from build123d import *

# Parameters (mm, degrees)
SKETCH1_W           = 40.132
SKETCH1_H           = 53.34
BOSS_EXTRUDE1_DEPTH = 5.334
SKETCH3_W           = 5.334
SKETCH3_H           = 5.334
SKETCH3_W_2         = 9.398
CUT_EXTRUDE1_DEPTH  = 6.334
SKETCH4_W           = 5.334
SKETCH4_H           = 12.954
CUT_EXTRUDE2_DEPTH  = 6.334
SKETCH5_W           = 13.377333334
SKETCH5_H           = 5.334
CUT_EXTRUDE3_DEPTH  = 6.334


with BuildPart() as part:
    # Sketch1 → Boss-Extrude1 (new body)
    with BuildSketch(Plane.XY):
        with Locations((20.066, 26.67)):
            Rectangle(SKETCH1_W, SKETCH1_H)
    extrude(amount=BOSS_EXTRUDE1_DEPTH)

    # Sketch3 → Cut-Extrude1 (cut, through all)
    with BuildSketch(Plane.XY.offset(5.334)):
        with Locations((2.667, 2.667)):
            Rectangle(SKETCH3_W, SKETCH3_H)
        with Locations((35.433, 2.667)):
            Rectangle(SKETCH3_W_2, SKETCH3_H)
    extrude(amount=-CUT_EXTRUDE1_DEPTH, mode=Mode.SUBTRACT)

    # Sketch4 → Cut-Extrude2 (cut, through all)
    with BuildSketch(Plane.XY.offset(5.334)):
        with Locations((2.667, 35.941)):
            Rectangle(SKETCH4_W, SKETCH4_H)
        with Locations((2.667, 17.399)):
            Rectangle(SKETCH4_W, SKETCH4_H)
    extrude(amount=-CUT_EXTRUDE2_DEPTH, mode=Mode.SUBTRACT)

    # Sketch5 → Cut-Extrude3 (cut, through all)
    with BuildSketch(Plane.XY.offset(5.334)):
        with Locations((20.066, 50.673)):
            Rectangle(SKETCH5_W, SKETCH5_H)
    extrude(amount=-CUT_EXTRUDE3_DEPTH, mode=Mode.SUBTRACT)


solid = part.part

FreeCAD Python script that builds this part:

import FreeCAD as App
import Part
import Sketcher

V = App.Vector
Q = App.Units.Quantity

doc = App.newDocument("Part")
body = doc.addObject("PartDesign::Body", "Body")

# Sketch on XY plane
sketch1 = body.newObject("Sketcher::SketchObject", "Sketch")
sketch1.AttachmentSupport = (doc.getObject("XY_Plane"), [""])
sketch1.MapMode = "FlatFace"
sketch1.addGeometry([
    Part.LineSegment(V(0, 53, 0), V(0, 0, 0)),
    Part.LineSegment(V(0, 0, 0), V(40, 0, 0)),
    Part.LineSegment(V(40, 0, 0), V(40, 53, 0)),
    Part.LineSegment(V(40, 53, 0), V(0, 53, 0)),
], False)
sketch1.addConstraint([
    Sketcher.Constraint("Coincident", 0, 2, 1, 1),
    Sketcher.Constraint("Coincident", 1, 2, 2, 1),
    Sketcher.Constraint("Coincident", 2, 2, 3, 1),
    Sketcher.Constraint("Coincident", 3, 2, 0, 1),
    Sketcher.Constraint("Vertical", 0),
    Sketcher.Constraint("Horizontal", 1),
    Sketcher.Constraint("Vertical", 2),
    Sketcher.Constraint("Horizontal", 3),
    Sketcher.Constraint("Coincident", 0, 2, -1, 1),
    Sketcher.Constraint("DistanceY", 0, 2, 0, 1, Q("2.1 in")),
    Sketcher.Constraint("DistanceX", 1, 1, 1, 2, Q("1.58 in")),
])
pad1 = body.newObject("PartDesign::Pad", "Pad")
pad1.Profile = sketch1
pad1.Length = Q("0.21 in")

# Sketch on XY plane
sketch2 = body.newObject("Sketcher::SketchObject", "Sketch001")
sketch2.AttachmentSupport = (doc.getObject("XY_Plane"), [""])
sketch2.MapMode = "FlatFace"
sketch2.AttachmentOffset = App.Placement(V(0, 0, 0.21 * 25.4), App.Rotation())
sketch2.addGeometry([
    Part.LineSegment(V(0, 5, 0), V(0, 0, 0)),  # 0
    Part.LineSegment(V(0, 0, 0), V(5, 0, 0)),  # 1
    Part.LineSegment(V(5, 0, 0), V(5, 5, 0)),  # 2
    Part.LineSegment(V(5, 5, 0), V(0, 5, 0)),  # 3
    Part.LineSegment(V(31, 5, 0), V(31, 0, 0)),  # 4
    Part.LineSegment(V(31, 0, 0), V(40, 0, 0)),  # 5
    Part.LineSegment(V(40, 0, 0), V(40, 5, 0)),  # 6
    Part.LineSegment(V(40, 5, 0), V(31, 5, 0)),  # 7
], False)
sketch2.addConstraint([
    Sketcher.Constraint("Coincident", 0, 2, 1, 1),
    Sketcher.Constraint("Coincident", 1, 2, 2, 1),
    Sketcher.Constraint("Coincident", 2, 2, 3, 1),
    Sketcher.Constraint("Coincident", 3, 2, 0, 1),
    Sketcher.Constraint("Coincident", 4, 2, 5, 1),
    Sketcher.Constraint("Coincident", 5, 2, 6, 1),
    Sketcher.Constraint("Coincident", 6, 2, 7, 1),
    Sketcher.Constraint("Coincident", 7, 2, 4, 1),
    Sketcher.Constraint("Vertical", 0),
    Sketcher.Constraint("Horizontal", 1),
    Sketcher.Constraint("Vertical", 2),
    Sketcher.Constraint("Horizontal", 3),
    Sketcher.Constraint("Vertical", 4),
    Sketcher.Constraint("Horizontal", 5),
    Sketcher.Constraint("Vertical", 6),
    Sketcher.Constraint("Horizontal", 7),
    Sketcher.Constraint("Coincident", 0, 2, -1, 1),
    Sketcher.Constraint("PointOnObject", 4, 2, -1),
    Sketcher.Constraint("Horizontal", 3, 2, 6, 2),
    Sketcher.Constraint("Equal", 3, 0),
    Sketcher.Constraint("DistanceX", 1, 2, 4, 2, Q("1 in")),
    Sketcher.Constraint("DistanceX", 1, 1, 1, 2, Q("0.21 in")),
    Sketcher.Constraint("DistanceX", 5, 1, 5, 2, Q("0.37 in")),
])
pocket1 = body.newObject("PartDesign::Pocket", "Pocket")
pocket1.Profile = sketch2
pocket1.Type = "ThroughAll"

# Sketch on XY plane
sketch3 = body.newObject("Sketcher::SketchObject", "Sketch002")
sketch3.AttachmentSupport = (doc.getObject("XY_Plane"), [""])
sketch3.MapMode = "FlatFace"
sketch3.AttachmentOffset = App.Placement(V(0, 0, 0.21 * 25.4), App.Rotation())
sketch3.addGeometry([
    Part.LineSegment(V(0, 42, 0), V(0, 29, 0)),  # 0
    Part.LineSegment(V(0, 29, 0), V(5, 29, 0)),  # 1
    Part.LineSegment(V(5, 29, 0), V(5, 42, 0)),  # 2
    Part.LineSegment(V(5, 42, 0), V(0, 42, 0)),  # 3
    Part.LineSegment(V(0, 24, 0), V(0, 11, 0)),  # 4
    Part.LineSegment(V(0, 11, 0), V(5, 11, 0)),  # 5
    Part.LineSegment(V(5, 11, 0), V(5, 24, 0)),  # 6
    Part.LineSegment(V(5, 24, 0), V(0, 24, 0)),  # 7
], False)
sketch3.addConstraint([
    Sketcher.Constraint("Coincident", 0, 2, 1, 1),
    Sketcher.Constraint("Coincident", 1, 2, 2, 1),
    Sketcher.Constraint("Coincident", 2, 2, 3, 1),
    Sketcher.Constraint("Coincident", 3, 2, 0, 1),
    Sketcher.Constraint("Coincident", 4, 2, 5, 1),
    Sketcher.Constraint("Coincident", 5, 2, 6, 1),
    Sketcher.Constraint("Coincident", 6, 2, 7, 1),
    Sketcher.Constraint("Coincident", 7, 2, 4, 1),
    Sketcher.Constraint("Vertical", 0),
    Sketcher.Constraint("Horizontal", 1),
    Sketcher.Constraint("Vertical", 2),
    Sketcher.Constraint("Horizontal", 3),
    Sketcher.Constraint("Vertical", 4),
    Sketcher.Constraint("Horizontal", 5),
    Sketcher.Constraint("Vertical", 6),
    Sketcher.Constraint("Horizontal", 7),
    Sketcher.Constraint("PointOnObject", 0, 2, -2),
    Sketcher.Constraint("PointOnObject", 4, 2, -2),
    Sketcher.Constraint("Vertical", 2, 2, 5, 2),
    Sketcher.Constraint("Equal", 2, 4),
    Sketcher.Constraint("DistanceX", 1, 1, 1, 2, Q("0.21 in")),
    Sketcher.Constraint("DistanceY", 0, 2, 0, 1, Q("0.51 in")),
    Sketcher.Constraint("DistanceY", -1, 1, 0, 2, Q("1.16 in")),
    Sketcher.Constraint("DistanceY", -1, 1, 4, 2, Q("0.43 in")),
])
pocket2 = body.newObject("PartDesign::Pocket", "Pocket001")
pocket2.Profile = sketch3
pocket2.Type = "ThroughAll"

# Sketch on XY plane
sketch4 = body.newObject("Sketcher::SketchObject", "Sketch003")
sketch4.AttachmentSupport = (doc.getObject("XY_Plane"), [""])
sketch4.MapMode = "FlatFace"
sketch4.AttachmentOffset = App.Placement(V(0, 0, 0.21 * 25.4), App.Rotation())
sketch4.addGeometry([
    Part.LineSegment(V(13, 53, 0), V(13, 48, 0)),
    Part.LineSegment(V(13, 48, 0), V(27, 48, 0)),
    Part.LineSegment(V(27, 48, 0), V(27, 53, 0)),
    Part.LineSegment(V(27, 53, 0), V(13, 53, 0)),
], False)
sketch4.addConstraint([
    Sketcher.Constraint("Coincident", 0, 2, 1, 1),
    Sketcher.Constraint("Coincident", 1, 2, 2, 1),
    Sketcher.Constraint("Coincident", 2, 2, 3, 1),
    Sketcher.Constraint("Coincident", 3, 2, 0, 1),
    Sketcher.Constraint("Vertical", 0),
    Sketcher.Constraint("Horizontal", 1),
    Sketcher.Constraint("Vertical", 2),
    Sketcher.Constraint("Horizontal", 3),
    Sketcher.Constraint("DistanceY", 0, 2, 0, 1, Q("0.21 in")),
    Sketcher.Constraint("DistanceY", -1, 1, 2, 2, Q("2.1 in")),
    Sketcher.Constraint("DistanceX", 1, 1, 1, 2, Q("13.377333 mm")),
    Sketcher.Constraint("DistanceX", -1, 1, 0, 2, Q("13.377333 mm")),
])
pocket3 = body.newObject("PartDesign::Pocket", "Pocket002")
pocket3.Profile = sketch4
pocket3.Type = "ThroughAll"

doc.recompute()
